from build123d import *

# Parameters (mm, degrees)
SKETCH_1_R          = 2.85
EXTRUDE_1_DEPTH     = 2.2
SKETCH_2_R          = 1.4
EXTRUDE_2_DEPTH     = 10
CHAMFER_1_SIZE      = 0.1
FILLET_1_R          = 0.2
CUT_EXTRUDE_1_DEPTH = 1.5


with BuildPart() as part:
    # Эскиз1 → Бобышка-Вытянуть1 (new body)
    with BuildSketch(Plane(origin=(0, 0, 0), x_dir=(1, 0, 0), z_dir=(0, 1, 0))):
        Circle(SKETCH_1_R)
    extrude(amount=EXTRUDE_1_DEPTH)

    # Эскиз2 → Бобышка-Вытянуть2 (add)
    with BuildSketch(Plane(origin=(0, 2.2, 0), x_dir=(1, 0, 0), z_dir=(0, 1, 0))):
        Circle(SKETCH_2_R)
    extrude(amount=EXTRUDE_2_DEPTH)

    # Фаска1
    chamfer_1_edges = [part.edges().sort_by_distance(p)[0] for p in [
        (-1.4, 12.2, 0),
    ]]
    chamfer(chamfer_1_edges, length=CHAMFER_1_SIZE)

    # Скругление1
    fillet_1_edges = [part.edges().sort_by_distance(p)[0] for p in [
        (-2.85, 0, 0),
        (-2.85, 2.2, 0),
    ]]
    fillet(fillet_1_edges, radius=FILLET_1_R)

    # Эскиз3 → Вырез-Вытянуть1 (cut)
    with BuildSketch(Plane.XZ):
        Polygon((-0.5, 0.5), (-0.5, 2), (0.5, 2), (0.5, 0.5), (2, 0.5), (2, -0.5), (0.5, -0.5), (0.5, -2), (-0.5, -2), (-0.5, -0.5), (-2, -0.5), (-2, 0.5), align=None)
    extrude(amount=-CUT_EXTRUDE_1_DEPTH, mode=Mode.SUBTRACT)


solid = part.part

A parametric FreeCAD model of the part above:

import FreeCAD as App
import Part
import Sketcher


def edges_at(feature, points):
    """Names of the edges that pass closest to the given points."""
    edges = feature.Shape.Edges
    near = lambda p: min(range(len(edges)), key=lambda i: edges[i].distToShape(Part.Vertex(*p))[0])
    return sorted({f"Edge{near(p) + 1}" for p in points})


def add_polygon(sketch, points):
    """Adds a closed chain of lines whose ends are joined by coincident constraints."""
    first, n = sketch.GeometryCount, len(points)
    for a, b in zip(points, points[1:] + points[:1]):
        sketch.addGeometry(Part.LineSegment(App.Vector(*a, 0), App.Vector(*b, 0)), False)
    for i in range(n):
        sketch.addConstraint(Sketcher.Constraint("Coincident", first + i, 2, first + (i + 1) % n, 1))

doc = App.newDocument("Part")
params = doc.addObject("Spreadsheet::Sheet", "Params")
for row, (alias, value) in enumerate([
    ("sketch1_diameter", "5.7 mm"),
    ("pad1_length", "2.2 mm"),
    ("sketch2_diameter", "2.8 mm"),
    ("pad2_length", "10 mm"),
    ("chamfer_size", "0.1 mm"),
    ("fillet_radius", "0.2 mm"),
    ("sketch3_width", "1 mm"),
    ("sketch3_width2", "1.5 mm"),
    ("pocket1_length", "1.5 mm"),
], start=1):
    params.set(f"A{row}", alias)
    params.set(f"B{row}", "=" + value)
    params.setAlias(f"B{row}", alias)

body = doc.addObject("PartDesign::Body", "Body")

sketch1 = body.newObject("Sketcher::SketchObject", "Sketch")
sketch1.AttachmentSupport = (doc.getObject("XZ_Plane"), [""])
sketch1.MapMode = "FlatFace"
sketch1.addGeometry(Part.Circle(App.Vector(0, 0, 0), App.Vector(0, 0, 1), 2.9), False)
sketch1.addConstraint([
    Sketcher.Constraint("Coincident", 0, 3, -1, 1),
    Sketcher.Constraint("Diameter", 0, 5.7),
])
sketch1.setExpression("Constraints[1]", "Params.sketch1_diameter")
pad1 = body.newObject("PartDesign::Pad", "Pad")
pad1.Profile = sketch1
pad1.setExpression("Length", "Params.pad1_length")
pad1.Reversed = True

sketch2 = body.newObject("Sketcher::SketchObject", "Sketch001")
sketch2.AttachmentSupport = (doc.getObject("XZ_Plane"), [""])
sketch2.MapMode = "FlatFace"
sketch2.AttachmentOffset = App.Placement(App.Vector(0, 0, -2.2), App.Rotation())
sketch2.addGeometry(Part.Circle(App.Vector(0, 0, 0), App.Vector(0, 0, 1), 1.4), False)
sketch2.addConstraint([
    Sketcher.Constraint("Coincident", 0, 3, -1, 1),
    Sketcher.Constraint("Diameter", 0, 2.8),
])
sketch2.setExpression("Constraints[1]", "Params.sketch2_diameter")
pad2 = body.newObject("PartDesign::Pad", "Pad001")
pad2.Profile = sketch2
pad2.setExpression("Length", "Params.pad2_length")
pad2.Reversed = True
doc.recompute()

chamfer = body.newObject("PartDesign::Chamfer", "Chamfer")
chamfer.Base = (pad2, edges_at(pad2, [(-1.4, 12.2, 0)]))
chamfer.setExpression("Size", "Params.chamfer_size")
doc.recompute()

fillet = body.newObject("PartDesign::Fillet", "Fillet")
fillet.Base = (chamfer, edges_at(chamfer, [(-2.85, 0, 0), (-2.85, 2.2, 0)]))
fillet.setExpression("Radius", "Params.fillet_radius")

sketch3 = body.newObject("Sketcher::SketchObject", "Sketch002")
sketch3.AttachmentSupport = (doc.getObject("XZ_Plane"), [""])
sketch3.MapMode = "FlatFace"
add_polygon(sketch3, [(-0.5, 2), (-0.5, 0.5), (-2, 0.5), (-2, -0.5), (-0.5, -0.5), (-0.5, -2), (0.5, -2), (0.5, -0.5), (2, -0.5), (2, 0.5), (0.5, 0.5), (0.5, 2)])
sketch3.addConstraint([
    Sketcher.Constraint("Vertical", 0),
    Sketcher.Constraint("Horizontal", 1),
    Sketcher.Constraint("Vertical", 2),
    Sketcher.Constraint("Horizontal", 3),
    Sketcher.Constraint("Vertical", 4),
    Sketcher.Constraint("Horizontal", 5),
    Sketcher.Constraint("Vertical", 6),
    Sketcher.Constraint("Horizontal", 7),
    Sketcher.Constraint("Vertical", 8),
    Sketcher.Constraint("Horizontal", 9),
    Sketcher.Constraint("Vertical", 10),
    Sketcher.Constraint("Horizontal", 11),
    Sketcher.Constraint("Symmetric", 0, 2, 6, 2, -1, 1),
    Sketcher.Constraint("Symmetric", 2, 2, 8, 2, -1, 1),
    Sketcher.Constraint("Symmetric", 4, 2, 10, 2, -1, 1),
    Sketcher.Constraint("Symmetric", 3, 2, 6, 2, -2),
    Sketcher.Constraint("Equal", 9, 0),
    Sketcher.Constraint("Equal", 11, 2),
    Sketcher.Constraint("DistanceX", 5, 1, 5, 2, 1.0),
    Sketcher.Constraint("DistanceX", 1, 2, 1, 1, 1.5),
])
sketch3.setExpression("Constraints[30]", "Params.sketch3_width")
sketch3.setExpression("Constraints[31]", "Params.sketch3_width2")
pocket1 = body.newObject("PartDesign::Pocket", "Pocket")
pocket1.Profile = sketch3
pocket1.setExpression("Length", "Params.pocket1_length")

doc.recompute()
